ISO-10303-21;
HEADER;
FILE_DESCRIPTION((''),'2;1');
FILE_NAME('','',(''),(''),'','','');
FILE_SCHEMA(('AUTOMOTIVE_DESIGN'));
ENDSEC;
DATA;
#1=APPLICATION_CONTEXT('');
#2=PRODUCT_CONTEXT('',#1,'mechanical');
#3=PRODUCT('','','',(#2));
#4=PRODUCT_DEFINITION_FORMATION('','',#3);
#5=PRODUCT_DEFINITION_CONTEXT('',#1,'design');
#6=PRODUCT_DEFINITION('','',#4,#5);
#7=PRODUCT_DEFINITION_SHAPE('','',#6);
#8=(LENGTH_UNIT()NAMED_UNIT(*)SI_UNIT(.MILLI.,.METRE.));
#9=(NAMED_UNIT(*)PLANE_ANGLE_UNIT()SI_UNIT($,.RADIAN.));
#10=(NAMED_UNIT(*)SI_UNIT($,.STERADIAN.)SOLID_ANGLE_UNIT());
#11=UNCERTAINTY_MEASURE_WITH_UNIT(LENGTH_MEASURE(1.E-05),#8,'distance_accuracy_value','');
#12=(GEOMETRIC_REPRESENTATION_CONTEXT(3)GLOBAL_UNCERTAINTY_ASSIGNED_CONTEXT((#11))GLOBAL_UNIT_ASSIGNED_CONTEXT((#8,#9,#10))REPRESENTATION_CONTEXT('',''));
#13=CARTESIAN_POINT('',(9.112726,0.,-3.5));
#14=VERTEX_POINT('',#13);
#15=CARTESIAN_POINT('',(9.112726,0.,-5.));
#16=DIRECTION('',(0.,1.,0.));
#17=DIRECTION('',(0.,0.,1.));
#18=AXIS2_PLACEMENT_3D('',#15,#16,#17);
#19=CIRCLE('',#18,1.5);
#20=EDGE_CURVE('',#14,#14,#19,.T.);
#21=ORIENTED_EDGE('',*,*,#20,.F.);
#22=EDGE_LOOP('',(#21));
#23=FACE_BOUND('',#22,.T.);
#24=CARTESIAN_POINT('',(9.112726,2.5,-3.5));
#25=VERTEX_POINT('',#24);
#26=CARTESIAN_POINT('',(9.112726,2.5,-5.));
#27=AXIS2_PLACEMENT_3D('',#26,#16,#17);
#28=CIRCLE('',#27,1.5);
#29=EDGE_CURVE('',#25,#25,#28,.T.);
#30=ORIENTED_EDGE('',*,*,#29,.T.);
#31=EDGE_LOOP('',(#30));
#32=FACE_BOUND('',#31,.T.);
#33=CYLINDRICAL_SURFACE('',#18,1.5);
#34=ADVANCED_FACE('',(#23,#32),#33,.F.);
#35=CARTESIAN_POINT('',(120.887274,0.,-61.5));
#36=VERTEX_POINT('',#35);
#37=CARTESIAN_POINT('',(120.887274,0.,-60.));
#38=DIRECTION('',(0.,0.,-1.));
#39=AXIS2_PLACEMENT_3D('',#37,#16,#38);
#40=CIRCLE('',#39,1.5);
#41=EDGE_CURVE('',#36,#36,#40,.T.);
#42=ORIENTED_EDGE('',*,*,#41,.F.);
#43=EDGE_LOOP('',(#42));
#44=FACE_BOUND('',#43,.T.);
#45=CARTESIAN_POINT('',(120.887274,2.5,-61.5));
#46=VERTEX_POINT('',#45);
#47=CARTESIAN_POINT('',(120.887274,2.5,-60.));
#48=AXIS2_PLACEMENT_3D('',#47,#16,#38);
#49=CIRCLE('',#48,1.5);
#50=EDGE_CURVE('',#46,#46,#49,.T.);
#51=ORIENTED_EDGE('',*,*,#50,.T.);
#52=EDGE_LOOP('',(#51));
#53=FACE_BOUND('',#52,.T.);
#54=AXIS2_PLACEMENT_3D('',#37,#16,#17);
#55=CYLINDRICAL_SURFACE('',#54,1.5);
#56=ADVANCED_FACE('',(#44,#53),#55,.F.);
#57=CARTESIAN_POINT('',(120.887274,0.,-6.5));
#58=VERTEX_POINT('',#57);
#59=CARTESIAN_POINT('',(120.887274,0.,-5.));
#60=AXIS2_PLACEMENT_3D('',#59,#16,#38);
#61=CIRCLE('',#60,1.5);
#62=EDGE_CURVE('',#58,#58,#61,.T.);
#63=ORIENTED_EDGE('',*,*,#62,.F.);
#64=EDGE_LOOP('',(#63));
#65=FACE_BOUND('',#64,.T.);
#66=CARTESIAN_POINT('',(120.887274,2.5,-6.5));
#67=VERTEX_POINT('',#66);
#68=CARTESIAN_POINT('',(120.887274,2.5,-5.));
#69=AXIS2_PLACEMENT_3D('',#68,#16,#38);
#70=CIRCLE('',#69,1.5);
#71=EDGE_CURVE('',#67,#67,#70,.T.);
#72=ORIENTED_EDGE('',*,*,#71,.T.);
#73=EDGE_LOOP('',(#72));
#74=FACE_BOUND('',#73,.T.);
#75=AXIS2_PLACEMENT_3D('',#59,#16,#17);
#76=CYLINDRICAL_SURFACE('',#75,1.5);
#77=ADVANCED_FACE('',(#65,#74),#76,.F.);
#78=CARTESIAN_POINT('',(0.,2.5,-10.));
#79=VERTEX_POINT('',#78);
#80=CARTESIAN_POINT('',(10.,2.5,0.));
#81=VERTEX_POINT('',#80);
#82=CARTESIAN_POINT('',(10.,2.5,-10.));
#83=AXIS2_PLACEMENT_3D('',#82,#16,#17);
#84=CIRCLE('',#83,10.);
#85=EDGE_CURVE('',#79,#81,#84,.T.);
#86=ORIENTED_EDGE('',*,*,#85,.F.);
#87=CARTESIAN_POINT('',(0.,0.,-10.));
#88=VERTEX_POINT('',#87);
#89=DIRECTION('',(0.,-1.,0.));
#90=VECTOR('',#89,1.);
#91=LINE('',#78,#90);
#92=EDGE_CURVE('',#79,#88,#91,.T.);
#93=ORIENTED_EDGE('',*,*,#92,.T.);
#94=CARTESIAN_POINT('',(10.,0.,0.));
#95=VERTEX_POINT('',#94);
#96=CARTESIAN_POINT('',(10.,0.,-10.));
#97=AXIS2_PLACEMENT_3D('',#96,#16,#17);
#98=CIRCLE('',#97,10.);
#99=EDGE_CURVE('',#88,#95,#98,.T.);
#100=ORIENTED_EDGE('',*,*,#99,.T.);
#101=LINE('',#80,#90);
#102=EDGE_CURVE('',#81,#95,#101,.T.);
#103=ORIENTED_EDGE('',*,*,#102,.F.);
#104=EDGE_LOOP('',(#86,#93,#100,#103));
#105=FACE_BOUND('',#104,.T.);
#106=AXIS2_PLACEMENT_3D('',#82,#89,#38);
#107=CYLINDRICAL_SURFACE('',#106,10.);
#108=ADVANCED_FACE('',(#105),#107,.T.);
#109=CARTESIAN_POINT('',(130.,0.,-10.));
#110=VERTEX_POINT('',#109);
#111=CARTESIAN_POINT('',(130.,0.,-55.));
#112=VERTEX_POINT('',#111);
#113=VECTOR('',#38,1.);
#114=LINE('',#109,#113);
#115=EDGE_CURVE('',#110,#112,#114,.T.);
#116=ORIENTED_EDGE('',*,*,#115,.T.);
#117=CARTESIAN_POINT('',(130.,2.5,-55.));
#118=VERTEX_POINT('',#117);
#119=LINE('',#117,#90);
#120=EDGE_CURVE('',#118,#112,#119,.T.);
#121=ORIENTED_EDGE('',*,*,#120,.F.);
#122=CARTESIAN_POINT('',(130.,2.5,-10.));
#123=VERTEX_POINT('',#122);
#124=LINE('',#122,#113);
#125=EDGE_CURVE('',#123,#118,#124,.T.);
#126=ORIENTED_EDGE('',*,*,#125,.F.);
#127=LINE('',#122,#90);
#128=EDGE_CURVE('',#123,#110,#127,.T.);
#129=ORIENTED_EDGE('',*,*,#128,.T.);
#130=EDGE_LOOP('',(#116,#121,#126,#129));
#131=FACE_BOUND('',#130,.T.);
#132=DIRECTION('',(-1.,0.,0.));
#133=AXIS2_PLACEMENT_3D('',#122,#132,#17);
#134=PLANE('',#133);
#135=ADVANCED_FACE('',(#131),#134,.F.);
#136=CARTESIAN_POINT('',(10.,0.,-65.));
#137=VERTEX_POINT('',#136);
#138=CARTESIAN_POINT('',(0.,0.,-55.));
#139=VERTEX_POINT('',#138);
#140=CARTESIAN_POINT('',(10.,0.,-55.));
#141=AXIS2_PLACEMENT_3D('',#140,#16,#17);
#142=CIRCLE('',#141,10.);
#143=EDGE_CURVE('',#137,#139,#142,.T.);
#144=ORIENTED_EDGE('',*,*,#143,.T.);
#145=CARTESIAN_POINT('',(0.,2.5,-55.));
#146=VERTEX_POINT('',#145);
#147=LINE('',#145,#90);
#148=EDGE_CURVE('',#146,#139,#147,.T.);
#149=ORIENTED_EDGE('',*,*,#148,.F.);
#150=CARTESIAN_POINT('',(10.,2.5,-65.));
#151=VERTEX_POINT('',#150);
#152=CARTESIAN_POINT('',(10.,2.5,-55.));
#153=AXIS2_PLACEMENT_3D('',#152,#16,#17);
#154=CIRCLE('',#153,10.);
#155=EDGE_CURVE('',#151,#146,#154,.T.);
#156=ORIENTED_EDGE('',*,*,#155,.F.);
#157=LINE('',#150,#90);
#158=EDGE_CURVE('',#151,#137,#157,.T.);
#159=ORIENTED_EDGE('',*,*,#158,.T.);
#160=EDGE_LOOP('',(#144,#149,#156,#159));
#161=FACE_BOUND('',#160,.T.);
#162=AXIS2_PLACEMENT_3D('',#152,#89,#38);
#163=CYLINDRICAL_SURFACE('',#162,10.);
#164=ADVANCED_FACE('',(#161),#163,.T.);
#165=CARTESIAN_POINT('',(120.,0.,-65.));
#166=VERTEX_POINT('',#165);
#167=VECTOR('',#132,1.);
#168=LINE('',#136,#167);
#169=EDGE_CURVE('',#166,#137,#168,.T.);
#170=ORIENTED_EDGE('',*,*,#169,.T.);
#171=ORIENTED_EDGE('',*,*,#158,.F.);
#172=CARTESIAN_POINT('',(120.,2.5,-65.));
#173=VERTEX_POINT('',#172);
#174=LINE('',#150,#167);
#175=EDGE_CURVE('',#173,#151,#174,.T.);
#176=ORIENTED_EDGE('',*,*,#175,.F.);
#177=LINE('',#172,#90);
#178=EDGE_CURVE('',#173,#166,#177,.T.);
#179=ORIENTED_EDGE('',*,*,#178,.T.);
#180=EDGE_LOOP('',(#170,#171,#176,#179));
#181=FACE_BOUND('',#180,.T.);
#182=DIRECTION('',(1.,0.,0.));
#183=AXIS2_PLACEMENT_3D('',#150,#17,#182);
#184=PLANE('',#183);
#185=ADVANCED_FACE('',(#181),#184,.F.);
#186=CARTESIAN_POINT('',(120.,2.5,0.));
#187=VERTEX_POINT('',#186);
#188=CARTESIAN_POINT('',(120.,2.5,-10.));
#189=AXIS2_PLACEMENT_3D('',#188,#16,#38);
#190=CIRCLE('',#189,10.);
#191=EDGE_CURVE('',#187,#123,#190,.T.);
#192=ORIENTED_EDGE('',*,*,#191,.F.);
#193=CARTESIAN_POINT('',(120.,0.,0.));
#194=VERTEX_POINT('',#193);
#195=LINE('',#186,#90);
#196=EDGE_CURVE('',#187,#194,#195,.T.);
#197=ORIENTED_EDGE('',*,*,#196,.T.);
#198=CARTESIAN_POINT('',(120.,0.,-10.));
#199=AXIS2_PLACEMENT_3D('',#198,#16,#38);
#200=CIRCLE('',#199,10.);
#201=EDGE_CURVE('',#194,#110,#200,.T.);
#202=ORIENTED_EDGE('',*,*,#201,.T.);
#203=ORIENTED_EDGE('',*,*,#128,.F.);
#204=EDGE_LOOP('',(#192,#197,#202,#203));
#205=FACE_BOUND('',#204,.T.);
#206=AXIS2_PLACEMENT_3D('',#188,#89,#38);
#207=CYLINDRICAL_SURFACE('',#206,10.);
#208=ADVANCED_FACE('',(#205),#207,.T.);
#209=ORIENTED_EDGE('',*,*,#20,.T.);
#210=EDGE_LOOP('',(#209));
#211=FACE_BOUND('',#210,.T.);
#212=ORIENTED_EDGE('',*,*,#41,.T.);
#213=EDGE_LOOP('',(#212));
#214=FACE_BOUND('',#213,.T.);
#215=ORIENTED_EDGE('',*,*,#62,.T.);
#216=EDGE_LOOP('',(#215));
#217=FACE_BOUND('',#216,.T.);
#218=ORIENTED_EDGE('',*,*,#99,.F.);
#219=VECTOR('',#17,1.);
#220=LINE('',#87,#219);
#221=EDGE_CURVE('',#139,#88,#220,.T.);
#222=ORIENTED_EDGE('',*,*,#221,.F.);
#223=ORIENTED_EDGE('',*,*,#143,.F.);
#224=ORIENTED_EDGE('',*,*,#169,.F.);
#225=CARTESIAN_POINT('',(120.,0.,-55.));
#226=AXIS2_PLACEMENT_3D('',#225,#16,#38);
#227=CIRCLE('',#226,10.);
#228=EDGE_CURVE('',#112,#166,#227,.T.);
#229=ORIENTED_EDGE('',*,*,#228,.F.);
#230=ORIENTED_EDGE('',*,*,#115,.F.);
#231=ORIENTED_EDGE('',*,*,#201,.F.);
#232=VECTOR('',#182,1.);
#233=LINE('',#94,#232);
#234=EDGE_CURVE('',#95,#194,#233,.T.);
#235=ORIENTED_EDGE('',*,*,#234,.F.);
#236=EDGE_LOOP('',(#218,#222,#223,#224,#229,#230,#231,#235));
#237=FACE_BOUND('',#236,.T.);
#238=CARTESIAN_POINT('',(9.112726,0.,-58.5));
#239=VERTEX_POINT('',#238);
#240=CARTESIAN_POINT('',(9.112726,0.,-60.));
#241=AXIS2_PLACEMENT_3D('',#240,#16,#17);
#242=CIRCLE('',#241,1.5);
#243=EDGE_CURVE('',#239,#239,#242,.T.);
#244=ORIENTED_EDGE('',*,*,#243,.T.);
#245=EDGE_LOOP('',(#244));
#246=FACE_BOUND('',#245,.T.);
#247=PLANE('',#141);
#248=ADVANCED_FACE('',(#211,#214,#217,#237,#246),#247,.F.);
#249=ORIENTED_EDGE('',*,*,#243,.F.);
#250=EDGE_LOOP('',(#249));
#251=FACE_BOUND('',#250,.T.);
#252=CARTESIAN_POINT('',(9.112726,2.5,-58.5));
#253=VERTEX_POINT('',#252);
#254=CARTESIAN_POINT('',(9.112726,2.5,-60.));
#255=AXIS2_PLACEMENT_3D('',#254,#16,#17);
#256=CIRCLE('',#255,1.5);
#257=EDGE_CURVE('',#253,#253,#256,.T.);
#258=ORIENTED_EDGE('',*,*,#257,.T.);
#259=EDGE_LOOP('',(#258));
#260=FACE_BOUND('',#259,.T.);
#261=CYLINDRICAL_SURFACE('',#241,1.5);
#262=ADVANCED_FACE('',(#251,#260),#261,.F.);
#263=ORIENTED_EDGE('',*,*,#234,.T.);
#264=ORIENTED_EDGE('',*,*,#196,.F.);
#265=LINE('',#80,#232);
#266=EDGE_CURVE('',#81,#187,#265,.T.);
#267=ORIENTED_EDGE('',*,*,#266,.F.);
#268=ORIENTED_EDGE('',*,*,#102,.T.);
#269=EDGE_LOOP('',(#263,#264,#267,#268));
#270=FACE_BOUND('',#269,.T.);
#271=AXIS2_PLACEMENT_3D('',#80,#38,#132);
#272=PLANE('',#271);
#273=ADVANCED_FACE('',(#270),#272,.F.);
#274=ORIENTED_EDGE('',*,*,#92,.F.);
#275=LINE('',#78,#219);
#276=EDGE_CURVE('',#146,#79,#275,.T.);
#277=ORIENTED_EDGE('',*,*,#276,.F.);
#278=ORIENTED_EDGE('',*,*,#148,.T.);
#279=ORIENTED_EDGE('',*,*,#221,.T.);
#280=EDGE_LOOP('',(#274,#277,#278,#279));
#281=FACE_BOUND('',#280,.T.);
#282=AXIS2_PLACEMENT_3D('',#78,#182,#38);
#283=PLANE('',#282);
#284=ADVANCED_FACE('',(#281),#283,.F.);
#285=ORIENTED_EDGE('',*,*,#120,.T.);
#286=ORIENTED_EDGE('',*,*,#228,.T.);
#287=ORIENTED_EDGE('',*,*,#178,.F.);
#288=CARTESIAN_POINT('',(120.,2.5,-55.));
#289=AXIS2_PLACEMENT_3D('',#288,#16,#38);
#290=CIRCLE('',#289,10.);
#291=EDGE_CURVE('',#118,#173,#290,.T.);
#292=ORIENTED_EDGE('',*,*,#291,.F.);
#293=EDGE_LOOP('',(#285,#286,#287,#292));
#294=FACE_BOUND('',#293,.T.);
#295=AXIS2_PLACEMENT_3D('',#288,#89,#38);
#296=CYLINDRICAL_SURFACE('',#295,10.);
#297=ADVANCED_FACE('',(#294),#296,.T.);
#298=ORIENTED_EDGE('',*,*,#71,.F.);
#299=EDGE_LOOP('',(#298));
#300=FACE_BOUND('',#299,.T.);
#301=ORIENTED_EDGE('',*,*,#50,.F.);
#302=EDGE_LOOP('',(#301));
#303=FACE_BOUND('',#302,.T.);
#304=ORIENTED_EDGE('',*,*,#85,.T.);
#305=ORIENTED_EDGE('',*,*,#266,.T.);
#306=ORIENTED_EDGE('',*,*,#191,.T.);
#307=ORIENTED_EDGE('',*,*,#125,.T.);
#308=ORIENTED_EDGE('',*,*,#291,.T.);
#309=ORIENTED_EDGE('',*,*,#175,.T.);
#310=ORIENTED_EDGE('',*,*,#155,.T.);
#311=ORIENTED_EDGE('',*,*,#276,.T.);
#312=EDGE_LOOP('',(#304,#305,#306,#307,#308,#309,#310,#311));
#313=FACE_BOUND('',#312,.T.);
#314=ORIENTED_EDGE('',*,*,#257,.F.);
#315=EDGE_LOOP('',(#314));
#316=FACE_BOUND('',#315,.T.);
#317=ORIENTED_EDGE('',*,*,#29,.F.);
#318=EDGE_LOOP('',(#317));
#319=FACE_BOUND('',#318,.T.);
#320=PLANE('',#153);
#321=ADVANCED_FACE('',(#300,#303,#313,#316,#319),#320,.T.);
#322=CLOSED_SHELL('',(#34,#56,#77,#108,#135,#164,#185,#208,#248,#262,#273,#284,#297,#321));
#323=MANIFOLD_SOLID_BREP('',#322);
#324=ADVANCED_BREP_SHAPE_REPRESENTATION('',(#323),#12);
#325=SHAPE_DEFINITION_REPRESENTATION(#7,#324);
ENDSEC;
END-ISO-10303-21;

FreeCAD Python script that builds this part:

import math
import FreeCAD as App
import Part
import Sketcher

V = App.Vector

doc = App.newDocument("Part")
body = doc.addObject("PartDesign::Body", "Body")

# Sketch on XZ plane
sketch1 = body.newObject("Sketcher::SketchObject", "Sketch")
sketch1.AttachmentSupport = (doc.getObject("XZ_Plane"), [""])
sketch1.MapMode = "FlatFace"
sketch1.addGeometry([
    Part.LineSegment(V(10, 0, 0), V(120, 0, 0)),  # 0
    Part.ArcOfCircle(Part.Circle(V(120, -10, 0), V(0, 0, 1), 10), math.radians(0), math.radians(90)),  # 1
    Part.LineSegment(V(130, -10, 0), V(130, -55, 0)),  # 2
    Part.ArcOfCircle(Part.Circle(V(120, -55, 0), V(0, 0, 1), 10), math.radians(-90), math.radians(0)),  # 3
    Part.LineSegment(V(120, -65, 0), V(10, -65, 0)),  # 4
    Part.ArcOfCircle(Part.Circle(V(10, -55, 0), V(0, 0, 1), 10), math.radians(180), math.radians(270)),  # 5
    Part.LineSegment(V(0, -55, 0), V(0, -10, 0)),  # 6
    Part.ArcOfCircle(Part.Circle(V(10, -10, 0), V(0, 0, 1), 10), math.radians(90), math.radians(180)),  # 7
], False)
sketch1.addConstraint([
    Sketcher.Constraint("Tangent", 0, 2, 1, 2),
    Sketcher.Constraint("Tangent", 1, 1, 2, 1),
    Sketcher.Constraint("Tangent", 2, 2, 3, 2),
    Sketcher.Constraint("Tangent", 3, 1, 4, 1),
    Sketcher.Constraint("Tangent", 4, 2, 5, 2),
    Sketcher.Constraint("Tangent", 5, 1, 6, 1),
    Sketcher.Constraint("Tangent", 6, 2, 7, 2),
    Sketcher.Constraint("Tangent", 7, 1, 0, 1),
    Sketcher.Constraint("Horizontal", 0),
    Sketcher.Constraint("Vertical", 2),
    Sketcher.Constraint("Horizontal", 4),
    Sketcher.Constraint("Vertical", 6),
    Sketcher.Constraint("Equal", 1, 3),
    Sketcher.Constraint("Equal", 3, 5),
    Sketcher.Constraint("Equal", 5, 7),
    Sketcher.Constraint("PointOnObject", 0, 2, -1),
    Sketcher.Constraint("PointOnObject", 5, 1, -2),
    Sketcher.Constraint("Radius", 1, 10.0),
    Sketcher.Constraint("DistanceX", 0, 1, 0, 2, 110.0),
    Sketcher.Constraint("DistanceY", 2, 2, 2, 1, 45.0),
])
pad1 = body.newObject("PartDesign::Pad", "Pad")
pad1.Profile = sketch1
pad1.Length = 2.5
pad1.Reversed = True

# Sketch on XZ plane
sketch2 = body.newObject("Sketcher::SketchObject", "Sketch001")
sketch2.AttachmentSupport = (doc.getObject("XZ_Plane"), [""])
sketch2.MapMode = "FlatFace"
sketch2.AttachmentOffset = App.Placement(V(0, 0, -2.5), App.Rotation())
sketch2.addGeometry([
    Part.Circle(V(9.1, -5, 0), V(0, 0, 1), 1.5),
    Part.Circle(V(9.1, -60, 0), V(0, 0, 1), 1.5),
    Part.Circle(V(120.9, -5, 0), V(0, 0, 1), 1.5),
    Part.Circle(V(120.9, -60, 0), V(0, 0, 1), 1.5),
], False)
sketch2.addConstraint([
    Sketcher.Constraint("Equal", 0, 1),
    Sketcher.Constraint("Equal", 1, 2),
    Sketcher.Constraint("Equal", 2, 3),
    Sketcher.Constraint("Horizontal", 0, 3, 2, 3),
    Sketcher.Constraint("Horizontal", 1, 3, 3, 3),
    Sketcher.Constraint("Vertical", 0, 3, 1, 3),
    Sketcher.Constraint("Vertical", 2, 3, 3, 3),
    Sketcher.Constraint("Diameter", 0, 3.0),
    Sketcher.Constraint("DistanceY", 0, 3, -1, 1, 5.0),
    Sketcher.Constraint("DistanceY", 1, 3, -1, 1, 60.0),
    Sketcher.Constraint("DistanceX", 0, 3, 2, 3, 111.774548),
    Sketcher.Constraint("DistanceX", -1, 1, 0, 3, 9.112726),
])
pocket1 = body.newObject("PartDesign::Pocket", "Pocket")
pocket1.Profile = sketch2
pocket1.Type = "ThroughAll"
pocket1.Reversed = True

doc.recompute()
